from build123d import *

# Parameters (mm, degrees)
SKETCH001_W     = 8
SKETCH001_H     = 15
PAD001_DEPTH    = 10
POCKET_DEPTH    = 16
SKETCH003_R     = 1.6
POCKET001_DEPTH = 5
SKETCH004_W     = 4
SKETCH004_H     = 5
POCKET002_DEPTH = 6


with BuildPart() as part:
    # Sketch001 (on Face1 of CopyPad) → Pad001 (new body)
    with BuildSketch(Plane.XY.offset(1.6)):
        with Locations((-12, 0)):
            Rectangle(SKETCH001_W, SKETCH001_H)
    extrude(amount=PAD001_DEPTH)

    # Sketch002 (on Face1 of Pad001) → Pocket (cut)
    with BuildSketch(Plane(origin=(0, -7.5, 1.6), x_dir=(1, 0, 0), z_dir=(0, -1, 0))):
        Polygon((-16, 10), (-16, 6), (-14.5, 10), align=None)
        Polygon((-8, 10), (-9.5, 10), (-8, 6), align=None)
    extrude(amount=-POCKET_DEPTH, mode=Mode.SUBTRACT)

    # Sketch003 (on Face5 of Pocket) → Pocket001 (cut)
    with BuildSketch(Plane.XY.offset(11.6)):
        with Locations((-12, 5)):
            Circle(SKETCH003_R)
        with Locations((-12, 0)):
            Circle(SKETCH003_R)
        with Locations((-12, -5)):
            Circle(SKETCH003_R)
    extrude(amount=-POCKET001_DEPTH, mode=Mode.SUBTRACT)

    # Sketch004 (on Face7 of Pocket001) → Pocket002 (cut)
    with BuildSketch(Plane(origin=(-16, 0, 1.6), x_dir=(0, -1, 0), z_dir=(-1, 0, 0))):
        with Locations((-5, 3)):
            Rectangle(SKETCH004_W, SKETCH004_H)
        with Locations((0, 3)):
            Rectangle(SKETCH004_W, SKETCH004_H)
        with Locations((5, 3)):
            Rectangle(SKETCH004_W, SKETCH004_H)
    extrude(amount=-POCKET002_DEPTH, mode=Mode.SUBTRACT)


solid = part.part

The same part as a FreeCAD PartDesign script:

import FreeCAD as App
import Part
import Sketcher
Q = App.Units.Quantity

doc = App.newDocument("Part")
params = doc.addObject("Spreadsheet::Sheet", "Params")
for row, (alias, value) in enumerate([
    ("sketch1_width", "8 mm"),
    ("sketch1_height", "15 mm"),
    ("pad1_length", "10 mm"),
    ("sketch2_height", "4 mm"),
    ("sketch2_width", "1.5 mm"),
    ("pocket1_length", "16 mm"),
    ("sketch3_diameter", "3.2 mm"),
    ("pocket2_length", "5 mm"),
    ("sketch4_width", "4 mm"),
    ("sketch4_height", "5 mm"),
    ("pocket3_length", "6 mm"),
], start=1):
    params.set(f"A{row}", alias)
    params.set(f"B{row}", "=" + value)
    params.setAlias(f"B{row}", alias)

body = doc.addObject("PartDesign::Body", "Body")

# Sketch on XY plane
sketch1 = doc.addObject("Sketcher::SketchObject", "Sketch")
body.addObject(sketch1)
sketch1.AttachmentSupport = (doc.XY_Plane, [""])
sketch1.MapMode = "FlatFace"
sketch1.AttachmentOffset = App.Placement(App.Vector(0, 0, 1.6), App.Rotation())
sketch1.addGeometry([
    Part.LineSegment(App.Vector(-16, 8, 0), App.Vector(-16, -8, 0)),
    Part.LineSegment(App.Vector(-16, -8, 0), App.Vector(-8, -8, 0)),
    Part.LineSegment(App.Vector(-8, -8, 0), App.Vector(-8, 8, 0)),
    Part.LineSegment(App.Vector(-8, 8, 0), App.Vector(-16, 8, 0)),
], False)
sketch1.addConstraint([
    Sketcher.Constraint("Coincident", 0, 2, 1, 1),
    Sketcher.Constraint("Coincident", 1, 2, 2, 1),
    Sketcher.Constraint("Coincident", 2, 2, 3, 1),
    Sketcher.Constraint("Coincident", 3, 2, 0, 1),
    Sketcher.Constraint("Vertical", 0),
    Sketcher.Constraint("Horizontal", 1),
    Sketcher.Constraint("Vertical", 2),
    Sketcher.Constraint("Horizontal", 3),
    Sketcher.Constraint("DistanceX", 1, 1, 1, 2, Q("8 mm")),
    Sketcher.Constraint("DistanceY", 0, 2, 0, 1, Q("15 mm")),
    Sketcher.Constraint("DistanceX", 0, 2, -1, 1, Q("16 mm")),
    Sketcher.Constraint("DistanceY", 0, 2, -1, 1, Q("7.5 mm")),
])
sketch1.setExpression("Constraints[8]", "Params.sketch1_width")
sketch1.setExpression("Constraints[9]", "Params.sketch1_height")
pad1 = doc.addObject("PartDesign::Pad", "Pad")
body.addObject(pad1)
pad1.Profile = sketch1
pad1.setExpression("Length", "Params.pad1_length")

# Sketch on XZ plane
sketch2 = doc.addObject("Sketcher::SketchObject", "Sketch001")
body.addObject(sketch2)
sketch2.AttachmentSupport = (doc.XZ_Plane, [""])
sketch2.MapMode = "FlatFace"
sketch2.AttachmentOffset = App.Placement(App.Vector(0, 0, 7.5), App.Rotation())
sketch2.addGeometry([
    Part.LineSegment(App.Vector(-16, 11.6, 0), App.Vector(-16, 7.6, 0)),  # 0
    Part.LineSegment(App.Vector(-16, 7.6, 0), App.Vector(-14.5, 11.6, 0)),  # 1
    Part.LineSegment(App.Vector(-14.5, 11.6, 0), App.Vector(-16, 11.6, 0)),  # 2
    Part.LineSegment(App.Vector(-8, 11.6, 0), App.Vector(-9.5, 11.6, 0)),  # 3
    Part.LineSegment(App.Vector(-9.5, 11.6, 0), App.Vector(-8, 7.6, 0)),  # 4
    Part.LineSegment(App.Vector(-8, 7.6, 0), App.Vector(-8, 11.6, 0)),  # 5
], False)
sketch2.addConstraint([
    Sketcher.Constraint("Coincident", 0, 2, 1, 1),
    Sketcher.Constraint("Coincident", 1, 2, 2, 1),
    Sketcher.Constraint("Coincident", 2, 2, 0, 1),
    Sketcher.Constraint("Coincident", 3, 2, 4, 1),
    Sketcher.Constraint("Coincident", 4, 2, 5, 1),
    Sketcher.Constraint("Coincident", 5, 2, 3, 1),
    Sketcher.Constraint("Vertical", 0),
    Sketcher.Constraint("Horizontal", 2),
    Sketcher.Constraint("Horizontal", 3),
    Sketcher.Constraint("Vertical", 5),
    Sketcher.Constraint("Horizontal", 2, 2, 3, 2),
    Sketcher.Constraint("Horizontal", 0, 2, 4, 2),
    Sketcher.Constraint("Equal", 2, 3),
    Sketcher.Constraint("DistanceY", 0, 2, 0, 1, Q("4 mm")),
    Sketcher.Constraint("DistanceX", 2, 2, 2, 1, Q("1.5 mm")),
    Sketcher.Constraint("DistanceX", 0, 2, -1, 1, Q("16 mm")),
    Sketcher.Constraint("DistanceX", 4, 2, -1, 1, Q("8 mm")),
    Sketcher.Constraint("DistanceY", -1, 1, 0, 2, Q("7.6 mm")),
])
sketch2.setExpression("Constraints[13]", "Params.sketch2_height")
sketch2.setExpression("Constraints[14]", "Params.sketch2_width")
pocket1 = doc.addObject("PartDesign::Pocket", "Pocket")
body.addObject(pocket1)
pocket1.Profile = sketch2
pocket1.setExpression("Length", "Params.pocket1_length")

# Sketch on XY plane
sketch3 = doc.addObject("Sketcher::SketchObject", "Sketch002")
body.addObject(sketch3)
sketch3.AttachmentSupport = (doc.XY_Plane, [""])
sketch3.MapMode = "FlatFace"
sketch3.AttachmentOffset = App.Placement(App.Vector(0, 0, 11.6), App.Rotation())
sketch3.addGeometry([
    Part.Circle(App.Vector(-12, 5, 0), App.Vector(0, 0, 1), 1.6),
    Part.Circle(App.Vector(-12, 0, 0), App.Vector(0, 0, 1), 1.6),
    Part.Circle(App.Vector(-12, -5, 0), App.Vector(0, 0, 1), 1.6),
], False)
sketch3.addConstraint([
    Sketcher.Constraint("Equal", 0, 1),
    Sketcher.Constraint("Equal", 1, 2),
    Sketcher.Constraint("Symmetric", 0, 3, 2, 3, -1),
    Sketcher.Constraint("PointOnObject", 1, 3, -1),
    Sketcher.Constraint("Vertical", 0, 3, 1, 3),
    Sketcher.Constraint("Diameter", 0, Q("3.2 mm")),
    Sketcher.Constraint("DistanceX", 0, 3, -1, 1, Q("12 mm")),
    Sketcher.Constraint("DistanceY", -1, 1, 0, 3, Q("5 mm")),
])
sketch3.setExpression("Constraints[5]", "Params.sketch3_diameter")
pocket2 = doc.addObject("PartDesign::Pocket", "Pocket001")
body.addObject(pocket2)
pocket2.Profile = sketch3
pocket2.setExpression("Length", "Params.pocket2_length")

# Sketch on YZ plane
sketch4 = doc.addObject("Sketcher::SketchObject", "Sketch003")
body.addObject(sketch4)
sketch4.AttachmentSupport = (doc.YZ_Plane, [""])
sketch4.MapMode = "FlatFace"
sketch4.AttachmentOffset = App.Placement(App.Vector(0, 0, -16), App.Rotation())
sketch4.addGeometry([
    Part.LineSegment(App.Vector(7, 7.1, 0), App.Vector(7, 2.1, 0)),  # 0
    Part.LineSegment(App.Vector(7, 2.1, 0), App.Vector(3, 2.1, 0)),  # 1
    Part.LineSegment(App.Vector(3, 2.1, 0), App.Vector(3, 7.1, 0)),  # 2
    Part.LineSegment(App.Vector(3, 7.1, 0), App.Vector(7, 7.1, 0)),  # 3
    Part.LineSegment(App.Vector(2, 7.1, 0), App.Vector(2, 2.1, 0)),  # 4
    Part.LineSegment(App.Vector(2, 2.1, 0), App.Vector(-2, 2.1, 0)),  # 5
    Part.LineSegment(App.Vector(-2, 2.1, 0), App.Vector(-2, 7.1, 0)),  # 6
    Part.LineSegment(App.Vector(-2, 7.1, 0), App.Vector(2, 7.1, 0)),  # 7
    Part.LineSegment(App.Vector(-3, 7.1, 0), App.Vector(-3, 2.1, 0)),  # 8
    Part.LineSegment(App.Vector(-3, 2.1, 0), App.Vector(-7, 2.1, 0)),  # 9
    Part.LineSegment(App.Vector(-7, 2.1, 0), App.Vector(-7, 7.1, 0)),  # 10
    Part.LineSegment(App.Vector(-7, 7.1, 0), App.Vector(-3, 7.1, 0)),  # 11
], False)
sketch4.addConstraint([
    Sketcher.Constraint("Coincident", 0, 2, 1, 1),
    Sketcher.Constraint("Coincident", 1, 2, 2, 1),
    Sketcher.Constraint("Coincident", 2, 2, 3, 1),
    Sketcher.Constraint("Coincident", 3, 2, 0, 1),
    Sketcher.Constraint("Coincident", 4, 2, 5, 1),
    Sketcher.Constraint("Coincident", 5, 2, 6, 1),
    Sketcher.Constraint("Coincident", 6, 2, 7, 1),
    Sketcher.Constraint("Coincident", 7, 2, 4, 1),
    Sketcher.Constraint("Coincident", 8, 2, 9, 1),
    Sketcher.Constraint("Coincident", 9, 2, 10, 1),
    Sketcher.Constraint("Coincident", 10, 2, 11, 1),
    Sketcher.Constraint("Coincident", 11, 2, 8, 1),
    Sketcher.Constraint("Vertical", 0),
    Sketcher.Constraint("Horizontal", 1),
    Sketcher.Constraint("Vertical", 2),
    Sketcher.Constraint("Horizontal", 3),
    Sketcher.Constraint("Vertical", 4),
    Sketcher.Constraint("Horizontal", 5),
    Sketcher.Constraint("Vertical", 6),
    Sketcher.Constraint("Horizontal", 7),
    Sketcher.Constraint("Vertical", 8),
    Sketcher.Constraint("Horizontal", 9),
    Sketcher.Constraint("Vertical", 10),
    Sketcher.Constraint("Horizontal", 11),
    Sketcher.Constraint("Symmetric", 1, 2, 8, 2, -2),
    Sketcher.Constraint("Symmetric", 3, 2, 10, 2, -2),
    Sketcher.Constraint("Horizontal", 1, 2, 4, 2),
    Sketcher.Constraint("Horizontal", 3, 2, 6, 2),
    Sketcher.Constraint("Equal", 3, 5),
    Sketcher.Constraint("DistanceX", 1, 2, 1, 1, Q("4 mm")),
    Sketcher.Constraint("DistanceY", 0, 2, 0, 1, Q("5 mm")),
    Sketcher.Constraint("DistanceX", -1, 1, 0, 2, Q("7 mm")),
    Sketcher.Constraint("DistanceX", -1, 1, 4, 2, Q("2 mm")),
    Sketcher.Constraint("DistanceY", -1, 1, 0, 2, Q("2.1 mm")),
])
sketch4.setExpression("Constraints[29]", "Params.sketch4_width")
sketch4.setExpression("Constraints[30]", "Params.sketch4_height")
pocket3 = doc.addObject("PartDesign::Pocket", "Pocket002")
body.addObject(pocket3)
pocket3.Profile = sketch4
pocket3.setExpression("Length", "Params.pocket3_length")
pocket3.Reversed = True

doc.recompute()
